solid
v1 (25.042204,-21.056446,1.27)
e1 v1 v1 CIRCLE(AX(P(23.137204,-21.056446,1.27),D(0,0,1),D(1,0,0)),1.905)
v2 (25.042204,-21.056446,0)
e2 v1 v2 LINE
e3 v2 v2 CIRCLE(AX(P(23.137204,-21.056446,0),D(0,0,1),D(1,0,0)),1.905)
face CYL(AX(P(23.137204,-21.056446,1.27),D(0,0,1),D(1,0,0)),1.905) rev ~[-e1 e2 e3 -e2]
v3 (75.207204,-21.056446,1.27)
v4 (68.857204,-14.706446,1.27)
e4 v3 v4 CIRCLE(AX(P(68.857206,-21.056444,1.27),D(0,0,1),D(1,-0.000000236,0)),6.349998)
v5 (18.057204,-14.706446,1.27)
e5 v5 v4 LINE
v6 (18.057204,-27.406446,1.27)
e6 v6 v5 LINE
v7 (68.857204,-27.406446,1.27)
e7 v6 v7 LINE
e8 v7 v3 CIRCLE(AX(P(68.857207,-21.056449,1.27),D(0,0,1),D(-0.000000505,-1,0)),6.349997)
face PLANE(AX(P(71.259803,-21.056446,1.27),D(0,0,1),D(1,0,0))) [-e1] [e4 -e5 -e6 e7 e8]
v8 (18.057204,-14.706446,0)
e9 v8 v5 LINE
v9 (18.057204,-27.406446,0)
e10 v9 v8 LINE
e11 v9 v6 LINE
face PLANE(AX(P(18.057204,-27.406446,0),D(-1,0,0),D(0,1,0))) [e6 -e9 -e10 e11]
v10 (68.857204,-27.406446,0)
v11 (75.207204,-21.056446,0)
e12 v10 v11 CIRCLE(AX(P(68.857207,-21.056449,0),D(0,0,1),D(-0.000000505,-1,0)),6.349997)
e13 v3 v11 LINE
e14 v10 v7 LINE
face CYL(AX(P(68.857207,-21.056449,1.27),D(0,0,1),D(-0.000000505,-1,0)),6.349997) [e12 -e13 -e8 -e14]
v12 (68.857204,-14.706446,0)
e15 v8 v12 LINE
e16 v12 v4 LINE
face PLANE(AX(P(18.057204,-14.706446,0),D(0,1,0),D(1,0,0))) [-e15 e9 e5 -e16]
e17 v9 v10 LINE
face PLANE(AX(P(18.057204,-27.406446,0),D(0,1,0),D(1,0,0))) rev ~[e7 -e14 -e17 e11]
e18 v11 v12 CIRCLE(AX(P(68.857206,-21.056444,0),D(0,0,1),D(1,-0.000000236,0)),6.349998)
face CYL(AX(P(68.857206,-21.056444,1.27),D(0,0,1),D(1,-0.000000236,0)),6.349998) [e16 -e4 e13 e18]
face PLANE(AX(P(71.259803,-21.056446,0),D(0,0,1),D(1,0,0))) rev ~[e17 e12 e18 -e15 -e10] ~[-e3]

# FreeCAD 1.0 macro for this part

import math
import FreeCAD as App
import Part
import Sketcher
Q = App.Units.Quantity

doc = App.newDocument("Part")
params = doc.addObject("Spreadsheet::Sheet", "Params")
for row, (alias, value) in enumerate([
    ("sketch1_width", "2 in"),
    ("sketch1_height", "0.5 in"),
    ("pad1_length", "0.05 in"),
    ("sketch2_diameter", "0.15 in"),
    ("pocket1_length", "1 in"),
    ("sketch3_radius", "0.2499999 in"),
    ("pad2_length", "0.05 in"),
], start=1):
    params.set(f"A{row}", alias)
    params.set(f"B{row}", "=" + value)
    params.setAlias(f"B{row}", alias)

body = doc.addObject("PartDesign::Body", "Body")

sketch1 = body.newObject("Sketcher::SketchObject", "Sketch")
sketch1.AttachmentSupport = (doc.getObject("XY_Plane"), [""])
sketch1.MapMode = "FlatFace"
sketch1.addGeometry(Part.LineSegment(App.Vector(18, -15, 0), App.Vector(18, -27, 0)), False)
sketch1.addGeometry(Part.LineSegment(App.Vector(18, -27, 0), App.Vector(69, -27, 0)), False)
sketch1.addGeometry(Part.LineSegment(App.Vector(69, -27, 0), App.Vector(69, -15, 0)), False)
sketch1.addGeometry(Part.LineSegment(App.Vector(69, -15, 0), App.Vector(18, -15, 0)), False)
sketch1.addConstraint(Sketcher.Constraint("Coincident", 0, 2, 1, 1))
sketch1.addConstraint(Sketcher.Constraint("Coincident", 1, 2, 2, 1))
sketch1.addConstraint(Sketcher.Constraint("Coincident", 2, 2, 3, 1))
sketch1.addConstraint(Sketcher.Constraint("Coincident", 3, 2, 0, 1))
sketch1.addConstraint(Sketcher.Constraint("Vertical", 0))
sketch1.addConstraint(Sketcher.Constraint("Horizontal", 1))
sketch1.addConstraint(Sketcher.Constraint("Vertical", 2))
sketch1.addConstraint(Sketcher.Constraint("Horizontal", 3))
sketch1.addConstraint(Sketcher.Constraint("DistanceX", 1, 1, 1, 2, Q("2 in")))
sketch1.addConstraint(Sketcher.Constraint("DistanceY", 0, 2, 0, 1, Q("0.5 in")))
sketch1.addConstraint(Sketcher.Constraint("DistanceX", -1, 1, 0, 2, Q("18.057204 mm")))
sketch1.addConstraint(Sketcher.Constraint("DistanceY", 0, 2, -1, 1, Q("27.406446 mm")))
sketch1.setExpression("Constraints[8]", "Params.sketch1_width")
sketch1.setExpression("Constraints[9]", "Params.sketch1_height")
pad1 = body.newObject("PartDesign::Pad", "Pad")
pad1.Profile = sketch1
pad1.setExpression("Length", "Params.pad1_length")

sketch2 = body.newObject("Sketcher::SketchObject", "Sketch001")
sketch2.AttachmentSupport = (doc.getObject("XY_Plane"), [""])
sketch2.MapMode = "FlatFace"
sketch2.AttachmentOffset = App.Placement(App.Vector(0, 0, 0.05 * 25.4), App.Rotation())
sketch2.addGeometry(Part.Circle(App.Vector(23.1, -21.1, 0), App.Vector(0, 0, 1), 1.9), False)
sketch2.addConstraint(Sketcher.Constraint("Diameter", 0, Q("0.15 in")))
sketch2.addConstraint(Sketcher.Constraint("DistanceX", -1, 1, 0, 3, Q("23.137204 mm")))
sketch2.addConstraint(Sketcher.Constraint("DistanceY", 0, 3, -1, 1, Q("21.056446 mm")))
sketch2.setExpression("Constraints[0]", "Params.sketch2_diameter")
pocket1 = body.newObject("PartDesign::Pocket", "Pocket")
pocket1.Profile = sketch2
pocket1.setExpression("Length", "Params.pocket1_length")

sketch3 = body.newObject("Sketcher::SketchObject", "Sketch002")
sketch3.AttachmentSupport = (doc.getObject("XY_Plane"), [""])
sketch3.MapMode = "FlatFace"
sketch3.AttachmentOffset = App.Placement(App.Vector(0, 0, 0.05 * 25.4), App.Rotation())
sketch3.addGeometry(Part.ArcOfCircle(Part.Circle(App.Vector(69, -21, 0), App.Vector(0, 0, 1), 6), math.radians(-90), math.radians(0)), False)
sketch3.addGeometry(Part.ArcOfCircle(Part.Circle(App.Vector(69, -21, 0), App.Vector(0, 0, 1), 6), math.radians(0), math.radians(90)), False)
sketch3.addGeometry(Part.LineSegment(App.Vector(69, -15, 0), App.Vector(69, -27, 0)), False)
sketch3.addConstraint(Sketcher.Constraint("Tangent", 0, 2, 1, 1))
sketch3.addConstraint(Sketcher.Constraint("Coincident", 1, 2, 2, 1))
sketch3.addConstraint(Sketcher.Constraint("Coincident", 2, 2, 0, 1))
sketch3.addConstraint(Sketcher.Constraint("Vertical", 2))
sketch3.addConstraint(Sketcher.Constraint("Equal", 0, 1))
sketch3.addConstraint(Sketcher.Constraint("Horizontal", 1, 3, 0, 2))
sketch3.addConstraint(Sketcher.Constraint("Radius", 0, Q("0.2499999 in")))
sketch3.addConstraint(Sketcher.Constraint("DistanceX", 1, 2, 0, 2, Q("0.25 in")))
sketch3.addConstraint(Sketcher.Constraint("DistanceY", 0, 3, -1, 1, Q("21.056449 mm")))
sketch3.addConstraint(Sketcher.Constraint("DistanceX", -1, 1, 0, 3, Q("68.857207 mm")))
sketch3.setExpression("Constraints[6]", "Params.sketch3_radius")
pad2 = body.newObject("PartDesign::Pad", "Pad001")
pad2.Profile = sketch3
pad2.setExpression("Length", "Params.pad2_length")
pad2.Reversed = True

doc.recompute()
